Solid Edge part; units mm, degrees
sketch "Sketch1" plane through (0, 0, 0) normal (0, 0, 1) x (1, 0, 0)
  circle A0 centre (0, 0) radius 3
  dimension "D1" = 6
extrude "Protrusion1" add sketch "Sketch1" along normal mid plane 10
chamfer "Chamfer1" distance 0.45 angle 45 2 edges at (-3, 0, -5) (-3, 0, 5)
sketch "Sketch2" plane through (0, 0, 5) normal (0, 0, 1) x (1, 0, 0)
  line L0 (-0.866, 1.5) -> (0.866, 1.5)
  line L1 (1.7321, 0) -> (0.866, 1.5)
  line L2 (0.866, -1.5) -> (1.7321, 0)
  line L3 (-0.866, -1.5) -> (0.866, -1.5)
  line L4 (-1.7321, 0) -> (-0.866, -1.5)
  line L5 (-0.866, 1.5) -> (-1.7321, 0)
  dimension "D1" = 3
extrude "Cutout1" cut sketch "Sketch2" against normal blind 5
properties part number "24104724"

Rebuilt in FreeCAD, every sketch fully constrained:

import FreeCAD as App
import Part
import Sketcher

V = App.Vector
Q = App.Units.Quantity


def edges_at(feature, points):
    """Names of the edges that pass closest to the given points."""
    edges = feature.Shape.Edges
    near = lambda p: min(range(len(edges)), key=lambda i: edges[i].distToShape(Part.Vertex(*p))[0])
    return sorted({f"Edge{near(p) + 1}" for p in points})

doc = App.newDocument("Part")
body = doc.addObject("PartDesign::Body", "Body")

# Sketch on XY plane
sketch1 = body.newObject("Sketcher::SketchObject", "Sketch")
sketch1.AttachmentSupport = (doc.getObject("XY_Plane"), [""])
sketch1.MapMode = "FlatFace"
sketch1.addGeometry(Part.Circle(V(0, 0, 0), V(0, 0, 1), 3), False)
sketch1.addConstraint(Sketcher.Constraint("Coincident", 0, 3, -1, 1))
sketch1.addConstraint(Sketcher.Constraint("Diameter", 0, Q("6 mm")))
pad1 = body.newObject("PartDesign::Pad", "Pad")
pad1.Profile = sketch1
pad1.Length = 10
pad1.Midplane = True
doc.recompute()

chamfer = body.newObject("PartDesign::Chamfer", "Chamfer")
chamfer.Base = (pad1, edges_at(pad1, [(-3, 0, -5), (-3, 0, 5)]))
chamfer.Size = 0.45

# Sketch on XY plane
sketch2 = body.newObject("Sketcher::SketchObject", "Sketch001")
sketch2.AttachmentSupport = (doc.getObject("XY_Plane"), [""])
sketch2.MapMode = "FlatFace"
sketch2.AttachmentOffset = App.Placement(V(0, 0, 5), App.Rotation())
sketch2.addGeometry(Part.LineSegment(V(0.9, 1.5, 0), V(-0.9, 1.5, 0)), False)
sketch2.addGeometry(Part.LineSegment(V(-0.9, 1.5, 0), V(-1.7, 0, 0)), False)
sketch2.addGeometry(Part.LineSegment(V(-1.7, 0, 0), V(-0.9, -1.5, 0)), False)
sketch2.addGeometry(Part.LineSegment(V(-0.9, -1.5, 0), V(0.9, -1.5, 0)), False)
sketch2.addGeometry(Part.LineSegment(V(0.9, -1.5, 0), V(1.7, 0, 0)), False)
sketch2.addGeometry(Part.LineSegment(V(1.7, 0, 0), V(0.9, 1.5, 0)), False)
sketch2.addConstraint(Sketcher.Constraint("Coincident", 0, 2, 1, 1))
sketch2.addConstraint(Sketcher.Constraint("Coincident", 1, 2, 2, 1))
sketch2.addConstraint(Sketcher.Constraint("Coincident", 2, 2, 3, 1))
sketch2.addConstraint(Sketcher.Constraint("Coincident", 3, 2, 4, 1))
sketch2.addConstraint(Sketcher.Constraint("Coincident", 4, 2, 5, 1))
sketch2.addConstraint(Sketcher.Constraint("Coincident", 5, 2, 0, 1))
sketch2.addConstraint(Sketcher.Constraint("Horizontal", 0))
sketch2.addConstraint(Sketcher.Constraint("Horizontal", 3))
sketch2.addConstraint(Sketcher.Constraint("Symmetric", 0, 2, 3, 2, -1, 1))
sketch2.addConstraint(Sketcher.Constraint("Symmetric", 1, 2, 4, 2, -1, 1))
sketch2.addConstraint(Sketcher.Constraint("PointOnObject", 1, 2, -1))
sketch2.addConstraint(Sketcher.Constraint("Parallel", 2, 5))
sketch2.addConstraint(Sketcher.Constraint("Vertical", 0, 2, 2, 2))
sketch2.addConstraint(Sketcher.Constraint("DistanceY", 2, 2, 0, 2, Q("3 mm")))
sketch2.addConstraint(Sketcher.Constraint("DistanceX", 0, 2, 0, 1, Q("1.732 mm")))
sketch2.addConstraint(Sketcher.Constraint("Distance", 1, Q("1.732 mm")))
pocket1 = body.newObject("PartDesign::Pocket", "Pocket")
pocket1.Profile = sketch2
pocket1.Length = 5

doc.recompute()
